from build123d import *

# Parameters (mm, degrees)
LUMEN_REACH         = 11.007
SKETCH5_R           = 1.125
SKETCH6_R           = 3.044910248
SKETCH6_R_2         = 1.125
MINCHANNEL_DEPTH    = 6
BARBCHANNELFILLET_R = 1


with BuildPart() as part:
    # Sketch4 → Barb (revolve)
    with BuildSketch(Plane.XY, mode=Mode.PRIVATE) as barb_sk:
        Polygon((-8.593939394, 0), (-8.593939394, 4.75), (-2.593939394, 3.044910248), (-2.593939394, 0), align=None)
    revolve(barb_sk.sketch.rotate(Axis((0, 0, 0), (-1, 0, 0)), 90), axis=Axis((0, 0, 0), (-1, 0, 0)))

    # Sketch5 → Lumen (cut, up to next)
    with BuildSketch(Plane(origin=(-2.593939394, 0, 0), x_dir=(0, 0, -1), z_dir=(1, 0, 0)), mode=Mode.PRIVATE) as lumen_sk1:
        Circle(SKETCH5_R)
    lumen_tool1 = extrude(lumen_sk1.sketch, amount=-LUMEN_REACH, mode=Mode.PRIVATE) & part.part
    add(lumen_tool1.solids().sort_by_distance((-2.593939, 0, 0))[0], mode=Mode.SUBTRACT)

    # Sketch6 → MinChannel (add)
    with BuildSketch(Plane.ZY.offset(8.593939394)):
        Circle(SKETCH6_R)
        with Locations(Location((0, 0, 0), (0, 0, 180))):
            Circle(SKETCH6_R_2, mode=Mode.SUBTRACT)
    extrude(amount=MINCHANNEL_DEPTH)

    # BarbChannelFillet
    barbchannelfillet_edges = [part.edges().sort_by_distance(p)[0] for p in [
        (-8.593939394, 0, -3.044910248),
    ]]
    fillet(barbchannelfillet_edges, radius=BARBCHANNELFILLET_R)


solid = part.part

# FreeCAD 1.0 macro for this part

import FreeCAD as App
import Part
import Sketcher

V = App.Vector
Q = App.Units.Quantity


def edges_at(feature, points):
    """Names of the edges that pass closest to the given points."""
    edges = feature.Shape.Edges
    near = lambda p: min(range(len(edges)), key=lambda i: edges[i].distToShape(Part.Vertex(*p))[0])
    return sorted({f"Edge{near(p) + 1}" for p in points})


def add_polygon(sketch, points):
    """Adds a closed chain of lines whose ends are joined by coincident constraints."""
    first, n = sketch.GeometryCount, len(points)
    for a, b in zip(points, points[1:] + points[:1]):
        sketch.addGeometry(Part.LineSegment(App.Vector(*a, 0), App.Vector(*b, 0)), False)
    for i in range(n):
        sketch.addConstraint(Sketcher.Constraint("Coincident", first + i, 2, first + (i + 1) % n, 1))

doc = App.newDocument("Part")
body = doc.addObject("PartDesign::Body", "Body")

# Sketch on XY plane
sketch1 = body.newObject("Sketcher::SketchObject", "Sketch")
sketch1.AttachmentSupport = (doc.getObject("XY_Plane"), [""])
sketch1.MapMode = "FlatFace"
add_polygon(sketch1, [(-8.6, 4.8), (-8.6, 0), (-2.6, 0), (-2.6, 3)])  # lines 0-3
sketch1.addConstraint([
    Sketcher.Constraint("Vertical", 0),
    Sketcher.Constraint("Horizontal", 1),
    Sketcher.Constraint("Vertical", 2),
    Sketcher.Constraint("PointOnObject", 0, 2, -1),
    Sketcher.Constraint("DistanceX", 1, 1, 1, 2, Q("6 mm")),
    Sketcher.Constraint("DistanceY", 0, 2, 0, 1, Q("4.75 mm")),
    Sketcher.Constraint("DistanceY", 2, 1, 2, 2, Q("3.04491 mm")),
    Sketcher.Constraint("DistanceX", 0, 2, -1, 1, Q("8.593939 mm")),
])
revolution = body.newObject("PartDesign::Revolution", "Revolution")
revolution.Profile = sketch1
revolution.ReferenceAxis = (sketch1, ["H_Axis"])
revolution.Angle = 360

# Sketch on YZ plane
sketch2 = body.newObject("Sketcher::SketchObject", "Sketch001")
sketch2.AttachmentSupport = (doc.getObject("YZ_Plane"), [""])
sketch2.MapMode = "FlatFace"
sketch2.AttachmentOffset = App.Placement(V(0, 0, -2.593939), App.Rotation())
sketch2.addGeometry(Part.Circle(V(0, 0, 0), V(0, 0, 1), 1.1), False)
sketch2.addConstraint([
    Sketcher.Constraint("Coincident", 0, 3, -1, 1),
    Sketcher.Constraint("Diameter", 0, Q("2.25 mm")),
])
pocket1 = body.newObject("PartDesign::Pocket", "Pocket")
pocket1.Profile = sketch2
pocket1.Type = "UpToFirst"

# Sketch on YZ plane
sketch3 = body.newObject("Sketcher::SketchObject", "Sketch002")
sketch3.AttachmentSupport = (doc.getObject("YZ_Plane"), [""])
sketch3.MapMode = "FlatFace"
sketch3.AttachmentOffset = App.Placement(V(0, 0, -8.593939), App.Rotation())
sketch3.addGeometry([
    Part.Circle(V(0, 0, 0), V(0, 0, 1), 3),
    Part.Circle(V(0, 0, 0), V(0, 0, 1), 1.1),
], False)
sketch3.addConstraint([
    Sketcher.Constraint("Coincident", 0, 3, -1, 1),
    Sketcher.Constraint("Coincident", 1, 3, -1, 1),
    Sketcher.Constraint("Diameter", 1, Q("2.25 mm")),
    Sketcher.Constraint("Diameter", 0, Q("6.08982 mm")),
])
pad1 = body.newObject("PartDesign::Pad", "Pad")
pad1.Profile = sketch3
pad1.Length = 6
pad1.Reversed = True
doc.recompute()

fillet = body.newObject("PartDesign::Fillet", "Fillet")
fillet.Base = (pad1, edges_at(pad1, [(-8.594, 0, -3.045)]))
fillet.Radius = 1

doc.recompute()
